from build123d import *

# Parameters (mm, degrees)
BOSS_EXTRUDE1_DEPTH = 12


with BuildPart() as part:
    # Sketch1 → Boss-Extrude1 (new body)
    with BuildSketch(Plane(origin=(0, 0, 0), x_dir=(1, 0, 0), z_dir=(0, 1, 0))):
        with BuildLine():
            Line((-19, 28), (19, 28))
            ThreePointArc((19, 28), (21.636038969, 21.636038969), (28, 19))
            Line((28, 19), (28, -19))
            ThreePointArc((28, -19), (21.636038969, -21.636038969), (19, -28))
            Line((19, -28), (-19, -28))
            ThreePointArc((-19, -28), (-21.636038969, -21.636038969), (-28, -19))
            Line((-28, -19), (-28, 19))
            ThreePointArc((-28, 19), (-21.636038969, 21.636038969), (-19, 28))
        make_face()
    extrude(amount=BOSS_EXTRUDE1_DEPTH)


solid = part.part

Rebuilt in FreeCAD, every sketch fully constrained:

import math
import FreeCAD as App
import Part
import Sketcher

V = App.Vector
Q = App.Units.Quantity

doc = App.newDocument("Part")
body = doc.addObject("PartDesign::Body", "Body")

sketch1 = body.newObject("Sketcher::SketchObject", "Sketch")
sketch1.AttachmentSupport = (doc.getObject("XZ_Plane"), [""])
sketch1.MapMode = "FlatFace"
sketch1.addGeometry([
    Part.LineSegment(V(19, -28, 0), V(-19, -28, 0)),
    Part.ArcOfCircle(Part.Circle(V(-28, -28, 0), V(0, 0, 1), 9), math.radians(0), math.radians(90)),
    Part.LineSegment(V(-28, -19, 0), V(-28, 19, 0)),
    Part.ArcOfCircle(Part.Circle(V(-28, 28, 0), V(0, 0, 1), 9), math.radians(-90), math.radians(0)),
    Part.LineSegment(V(-19, 28, 0), V(19, 28, 0)),
    Part.ArcOfCircle(Part.Circle(V(28, 28, 0), V(0, 0, 1), 9), math.radians(180), math.radians(270)),
    Part.LineSegment(V(28, 19, 0), V(28, -19, 0)),
    Part.ArcOfCircle(Part.Circle(V(28, -28, 0), V(0, 0, 1), 9), math.radians(90), math.radians(180)),
], False)
sketch1.addConstraint([
    Sketcher.Constraint("Coincident", 0, 2, 1, 1),
    Sketcher.Constraint("Coincident", 1, 2, 2, 1),
    Sketcher.Constraint("Coincident", 2, 2, 3, 1),
    Sketcher.Constraint("Coincident", 3, 2, 4, 1),
    Sketcher.Constraint("Coincident", 4, 2, 5, 1),
    Sketcher.Constraint("Coincident", 5, 2, 6, 1),
    Sketcher.Constraint("Coincident", 6, 2, 7, 1),
    Sketcher.Constraint("Coincident", 7, 2, 0, 1),
    Sketcher.Constraint("Horizontal", 0),
    Sketcher.Constraint("Vertical", 2),
    Sketcher.Constraint("Horizontal", 4),
    Sketcher.Constraint("Vertical", 6),
    Sketcher.Constraint("Equal", 1, 3),
    Sketcher.Constraint("Equal", 3, 5),
    Sketcher.Constraint("Equal", 5, 7),
    Sketcher.Constraint("Symmetric", 1, 3, 5, 3, -1, 1),
    Sketcher.Constraint("Symmetric", 3, 3, 7, 3, -1, 1),
    Sketcher.Constraint("Symmetric", 3, 3, 5, 3, -2),
    Sketcher.Constraint("Horizontal", 7, 3, 0, 2),
    Sketcher.Constraint("Horizontal", 5, 3, 3, 2),
    Sketcher.Constraint("Vertical", 3, 3, 1, 2),
    Sketcher.Constraint("Vertical", 7, 3, 5, 2),
    Sketcher.Constraint("Equal", 4, 2),
    Sketcher.Constraint("Radius", 1, Q("9 mm")),
    Sketcher.Constraint("DistanceX", 0, 2, 0, 1, Q("38 mm")),
])
pad1 = body.newObject("PartDesign::Pad", "Pad")
pad1.Profile = sketch1
pad1.Length = 12
pad1.Reversed = True

doc.recompute()
